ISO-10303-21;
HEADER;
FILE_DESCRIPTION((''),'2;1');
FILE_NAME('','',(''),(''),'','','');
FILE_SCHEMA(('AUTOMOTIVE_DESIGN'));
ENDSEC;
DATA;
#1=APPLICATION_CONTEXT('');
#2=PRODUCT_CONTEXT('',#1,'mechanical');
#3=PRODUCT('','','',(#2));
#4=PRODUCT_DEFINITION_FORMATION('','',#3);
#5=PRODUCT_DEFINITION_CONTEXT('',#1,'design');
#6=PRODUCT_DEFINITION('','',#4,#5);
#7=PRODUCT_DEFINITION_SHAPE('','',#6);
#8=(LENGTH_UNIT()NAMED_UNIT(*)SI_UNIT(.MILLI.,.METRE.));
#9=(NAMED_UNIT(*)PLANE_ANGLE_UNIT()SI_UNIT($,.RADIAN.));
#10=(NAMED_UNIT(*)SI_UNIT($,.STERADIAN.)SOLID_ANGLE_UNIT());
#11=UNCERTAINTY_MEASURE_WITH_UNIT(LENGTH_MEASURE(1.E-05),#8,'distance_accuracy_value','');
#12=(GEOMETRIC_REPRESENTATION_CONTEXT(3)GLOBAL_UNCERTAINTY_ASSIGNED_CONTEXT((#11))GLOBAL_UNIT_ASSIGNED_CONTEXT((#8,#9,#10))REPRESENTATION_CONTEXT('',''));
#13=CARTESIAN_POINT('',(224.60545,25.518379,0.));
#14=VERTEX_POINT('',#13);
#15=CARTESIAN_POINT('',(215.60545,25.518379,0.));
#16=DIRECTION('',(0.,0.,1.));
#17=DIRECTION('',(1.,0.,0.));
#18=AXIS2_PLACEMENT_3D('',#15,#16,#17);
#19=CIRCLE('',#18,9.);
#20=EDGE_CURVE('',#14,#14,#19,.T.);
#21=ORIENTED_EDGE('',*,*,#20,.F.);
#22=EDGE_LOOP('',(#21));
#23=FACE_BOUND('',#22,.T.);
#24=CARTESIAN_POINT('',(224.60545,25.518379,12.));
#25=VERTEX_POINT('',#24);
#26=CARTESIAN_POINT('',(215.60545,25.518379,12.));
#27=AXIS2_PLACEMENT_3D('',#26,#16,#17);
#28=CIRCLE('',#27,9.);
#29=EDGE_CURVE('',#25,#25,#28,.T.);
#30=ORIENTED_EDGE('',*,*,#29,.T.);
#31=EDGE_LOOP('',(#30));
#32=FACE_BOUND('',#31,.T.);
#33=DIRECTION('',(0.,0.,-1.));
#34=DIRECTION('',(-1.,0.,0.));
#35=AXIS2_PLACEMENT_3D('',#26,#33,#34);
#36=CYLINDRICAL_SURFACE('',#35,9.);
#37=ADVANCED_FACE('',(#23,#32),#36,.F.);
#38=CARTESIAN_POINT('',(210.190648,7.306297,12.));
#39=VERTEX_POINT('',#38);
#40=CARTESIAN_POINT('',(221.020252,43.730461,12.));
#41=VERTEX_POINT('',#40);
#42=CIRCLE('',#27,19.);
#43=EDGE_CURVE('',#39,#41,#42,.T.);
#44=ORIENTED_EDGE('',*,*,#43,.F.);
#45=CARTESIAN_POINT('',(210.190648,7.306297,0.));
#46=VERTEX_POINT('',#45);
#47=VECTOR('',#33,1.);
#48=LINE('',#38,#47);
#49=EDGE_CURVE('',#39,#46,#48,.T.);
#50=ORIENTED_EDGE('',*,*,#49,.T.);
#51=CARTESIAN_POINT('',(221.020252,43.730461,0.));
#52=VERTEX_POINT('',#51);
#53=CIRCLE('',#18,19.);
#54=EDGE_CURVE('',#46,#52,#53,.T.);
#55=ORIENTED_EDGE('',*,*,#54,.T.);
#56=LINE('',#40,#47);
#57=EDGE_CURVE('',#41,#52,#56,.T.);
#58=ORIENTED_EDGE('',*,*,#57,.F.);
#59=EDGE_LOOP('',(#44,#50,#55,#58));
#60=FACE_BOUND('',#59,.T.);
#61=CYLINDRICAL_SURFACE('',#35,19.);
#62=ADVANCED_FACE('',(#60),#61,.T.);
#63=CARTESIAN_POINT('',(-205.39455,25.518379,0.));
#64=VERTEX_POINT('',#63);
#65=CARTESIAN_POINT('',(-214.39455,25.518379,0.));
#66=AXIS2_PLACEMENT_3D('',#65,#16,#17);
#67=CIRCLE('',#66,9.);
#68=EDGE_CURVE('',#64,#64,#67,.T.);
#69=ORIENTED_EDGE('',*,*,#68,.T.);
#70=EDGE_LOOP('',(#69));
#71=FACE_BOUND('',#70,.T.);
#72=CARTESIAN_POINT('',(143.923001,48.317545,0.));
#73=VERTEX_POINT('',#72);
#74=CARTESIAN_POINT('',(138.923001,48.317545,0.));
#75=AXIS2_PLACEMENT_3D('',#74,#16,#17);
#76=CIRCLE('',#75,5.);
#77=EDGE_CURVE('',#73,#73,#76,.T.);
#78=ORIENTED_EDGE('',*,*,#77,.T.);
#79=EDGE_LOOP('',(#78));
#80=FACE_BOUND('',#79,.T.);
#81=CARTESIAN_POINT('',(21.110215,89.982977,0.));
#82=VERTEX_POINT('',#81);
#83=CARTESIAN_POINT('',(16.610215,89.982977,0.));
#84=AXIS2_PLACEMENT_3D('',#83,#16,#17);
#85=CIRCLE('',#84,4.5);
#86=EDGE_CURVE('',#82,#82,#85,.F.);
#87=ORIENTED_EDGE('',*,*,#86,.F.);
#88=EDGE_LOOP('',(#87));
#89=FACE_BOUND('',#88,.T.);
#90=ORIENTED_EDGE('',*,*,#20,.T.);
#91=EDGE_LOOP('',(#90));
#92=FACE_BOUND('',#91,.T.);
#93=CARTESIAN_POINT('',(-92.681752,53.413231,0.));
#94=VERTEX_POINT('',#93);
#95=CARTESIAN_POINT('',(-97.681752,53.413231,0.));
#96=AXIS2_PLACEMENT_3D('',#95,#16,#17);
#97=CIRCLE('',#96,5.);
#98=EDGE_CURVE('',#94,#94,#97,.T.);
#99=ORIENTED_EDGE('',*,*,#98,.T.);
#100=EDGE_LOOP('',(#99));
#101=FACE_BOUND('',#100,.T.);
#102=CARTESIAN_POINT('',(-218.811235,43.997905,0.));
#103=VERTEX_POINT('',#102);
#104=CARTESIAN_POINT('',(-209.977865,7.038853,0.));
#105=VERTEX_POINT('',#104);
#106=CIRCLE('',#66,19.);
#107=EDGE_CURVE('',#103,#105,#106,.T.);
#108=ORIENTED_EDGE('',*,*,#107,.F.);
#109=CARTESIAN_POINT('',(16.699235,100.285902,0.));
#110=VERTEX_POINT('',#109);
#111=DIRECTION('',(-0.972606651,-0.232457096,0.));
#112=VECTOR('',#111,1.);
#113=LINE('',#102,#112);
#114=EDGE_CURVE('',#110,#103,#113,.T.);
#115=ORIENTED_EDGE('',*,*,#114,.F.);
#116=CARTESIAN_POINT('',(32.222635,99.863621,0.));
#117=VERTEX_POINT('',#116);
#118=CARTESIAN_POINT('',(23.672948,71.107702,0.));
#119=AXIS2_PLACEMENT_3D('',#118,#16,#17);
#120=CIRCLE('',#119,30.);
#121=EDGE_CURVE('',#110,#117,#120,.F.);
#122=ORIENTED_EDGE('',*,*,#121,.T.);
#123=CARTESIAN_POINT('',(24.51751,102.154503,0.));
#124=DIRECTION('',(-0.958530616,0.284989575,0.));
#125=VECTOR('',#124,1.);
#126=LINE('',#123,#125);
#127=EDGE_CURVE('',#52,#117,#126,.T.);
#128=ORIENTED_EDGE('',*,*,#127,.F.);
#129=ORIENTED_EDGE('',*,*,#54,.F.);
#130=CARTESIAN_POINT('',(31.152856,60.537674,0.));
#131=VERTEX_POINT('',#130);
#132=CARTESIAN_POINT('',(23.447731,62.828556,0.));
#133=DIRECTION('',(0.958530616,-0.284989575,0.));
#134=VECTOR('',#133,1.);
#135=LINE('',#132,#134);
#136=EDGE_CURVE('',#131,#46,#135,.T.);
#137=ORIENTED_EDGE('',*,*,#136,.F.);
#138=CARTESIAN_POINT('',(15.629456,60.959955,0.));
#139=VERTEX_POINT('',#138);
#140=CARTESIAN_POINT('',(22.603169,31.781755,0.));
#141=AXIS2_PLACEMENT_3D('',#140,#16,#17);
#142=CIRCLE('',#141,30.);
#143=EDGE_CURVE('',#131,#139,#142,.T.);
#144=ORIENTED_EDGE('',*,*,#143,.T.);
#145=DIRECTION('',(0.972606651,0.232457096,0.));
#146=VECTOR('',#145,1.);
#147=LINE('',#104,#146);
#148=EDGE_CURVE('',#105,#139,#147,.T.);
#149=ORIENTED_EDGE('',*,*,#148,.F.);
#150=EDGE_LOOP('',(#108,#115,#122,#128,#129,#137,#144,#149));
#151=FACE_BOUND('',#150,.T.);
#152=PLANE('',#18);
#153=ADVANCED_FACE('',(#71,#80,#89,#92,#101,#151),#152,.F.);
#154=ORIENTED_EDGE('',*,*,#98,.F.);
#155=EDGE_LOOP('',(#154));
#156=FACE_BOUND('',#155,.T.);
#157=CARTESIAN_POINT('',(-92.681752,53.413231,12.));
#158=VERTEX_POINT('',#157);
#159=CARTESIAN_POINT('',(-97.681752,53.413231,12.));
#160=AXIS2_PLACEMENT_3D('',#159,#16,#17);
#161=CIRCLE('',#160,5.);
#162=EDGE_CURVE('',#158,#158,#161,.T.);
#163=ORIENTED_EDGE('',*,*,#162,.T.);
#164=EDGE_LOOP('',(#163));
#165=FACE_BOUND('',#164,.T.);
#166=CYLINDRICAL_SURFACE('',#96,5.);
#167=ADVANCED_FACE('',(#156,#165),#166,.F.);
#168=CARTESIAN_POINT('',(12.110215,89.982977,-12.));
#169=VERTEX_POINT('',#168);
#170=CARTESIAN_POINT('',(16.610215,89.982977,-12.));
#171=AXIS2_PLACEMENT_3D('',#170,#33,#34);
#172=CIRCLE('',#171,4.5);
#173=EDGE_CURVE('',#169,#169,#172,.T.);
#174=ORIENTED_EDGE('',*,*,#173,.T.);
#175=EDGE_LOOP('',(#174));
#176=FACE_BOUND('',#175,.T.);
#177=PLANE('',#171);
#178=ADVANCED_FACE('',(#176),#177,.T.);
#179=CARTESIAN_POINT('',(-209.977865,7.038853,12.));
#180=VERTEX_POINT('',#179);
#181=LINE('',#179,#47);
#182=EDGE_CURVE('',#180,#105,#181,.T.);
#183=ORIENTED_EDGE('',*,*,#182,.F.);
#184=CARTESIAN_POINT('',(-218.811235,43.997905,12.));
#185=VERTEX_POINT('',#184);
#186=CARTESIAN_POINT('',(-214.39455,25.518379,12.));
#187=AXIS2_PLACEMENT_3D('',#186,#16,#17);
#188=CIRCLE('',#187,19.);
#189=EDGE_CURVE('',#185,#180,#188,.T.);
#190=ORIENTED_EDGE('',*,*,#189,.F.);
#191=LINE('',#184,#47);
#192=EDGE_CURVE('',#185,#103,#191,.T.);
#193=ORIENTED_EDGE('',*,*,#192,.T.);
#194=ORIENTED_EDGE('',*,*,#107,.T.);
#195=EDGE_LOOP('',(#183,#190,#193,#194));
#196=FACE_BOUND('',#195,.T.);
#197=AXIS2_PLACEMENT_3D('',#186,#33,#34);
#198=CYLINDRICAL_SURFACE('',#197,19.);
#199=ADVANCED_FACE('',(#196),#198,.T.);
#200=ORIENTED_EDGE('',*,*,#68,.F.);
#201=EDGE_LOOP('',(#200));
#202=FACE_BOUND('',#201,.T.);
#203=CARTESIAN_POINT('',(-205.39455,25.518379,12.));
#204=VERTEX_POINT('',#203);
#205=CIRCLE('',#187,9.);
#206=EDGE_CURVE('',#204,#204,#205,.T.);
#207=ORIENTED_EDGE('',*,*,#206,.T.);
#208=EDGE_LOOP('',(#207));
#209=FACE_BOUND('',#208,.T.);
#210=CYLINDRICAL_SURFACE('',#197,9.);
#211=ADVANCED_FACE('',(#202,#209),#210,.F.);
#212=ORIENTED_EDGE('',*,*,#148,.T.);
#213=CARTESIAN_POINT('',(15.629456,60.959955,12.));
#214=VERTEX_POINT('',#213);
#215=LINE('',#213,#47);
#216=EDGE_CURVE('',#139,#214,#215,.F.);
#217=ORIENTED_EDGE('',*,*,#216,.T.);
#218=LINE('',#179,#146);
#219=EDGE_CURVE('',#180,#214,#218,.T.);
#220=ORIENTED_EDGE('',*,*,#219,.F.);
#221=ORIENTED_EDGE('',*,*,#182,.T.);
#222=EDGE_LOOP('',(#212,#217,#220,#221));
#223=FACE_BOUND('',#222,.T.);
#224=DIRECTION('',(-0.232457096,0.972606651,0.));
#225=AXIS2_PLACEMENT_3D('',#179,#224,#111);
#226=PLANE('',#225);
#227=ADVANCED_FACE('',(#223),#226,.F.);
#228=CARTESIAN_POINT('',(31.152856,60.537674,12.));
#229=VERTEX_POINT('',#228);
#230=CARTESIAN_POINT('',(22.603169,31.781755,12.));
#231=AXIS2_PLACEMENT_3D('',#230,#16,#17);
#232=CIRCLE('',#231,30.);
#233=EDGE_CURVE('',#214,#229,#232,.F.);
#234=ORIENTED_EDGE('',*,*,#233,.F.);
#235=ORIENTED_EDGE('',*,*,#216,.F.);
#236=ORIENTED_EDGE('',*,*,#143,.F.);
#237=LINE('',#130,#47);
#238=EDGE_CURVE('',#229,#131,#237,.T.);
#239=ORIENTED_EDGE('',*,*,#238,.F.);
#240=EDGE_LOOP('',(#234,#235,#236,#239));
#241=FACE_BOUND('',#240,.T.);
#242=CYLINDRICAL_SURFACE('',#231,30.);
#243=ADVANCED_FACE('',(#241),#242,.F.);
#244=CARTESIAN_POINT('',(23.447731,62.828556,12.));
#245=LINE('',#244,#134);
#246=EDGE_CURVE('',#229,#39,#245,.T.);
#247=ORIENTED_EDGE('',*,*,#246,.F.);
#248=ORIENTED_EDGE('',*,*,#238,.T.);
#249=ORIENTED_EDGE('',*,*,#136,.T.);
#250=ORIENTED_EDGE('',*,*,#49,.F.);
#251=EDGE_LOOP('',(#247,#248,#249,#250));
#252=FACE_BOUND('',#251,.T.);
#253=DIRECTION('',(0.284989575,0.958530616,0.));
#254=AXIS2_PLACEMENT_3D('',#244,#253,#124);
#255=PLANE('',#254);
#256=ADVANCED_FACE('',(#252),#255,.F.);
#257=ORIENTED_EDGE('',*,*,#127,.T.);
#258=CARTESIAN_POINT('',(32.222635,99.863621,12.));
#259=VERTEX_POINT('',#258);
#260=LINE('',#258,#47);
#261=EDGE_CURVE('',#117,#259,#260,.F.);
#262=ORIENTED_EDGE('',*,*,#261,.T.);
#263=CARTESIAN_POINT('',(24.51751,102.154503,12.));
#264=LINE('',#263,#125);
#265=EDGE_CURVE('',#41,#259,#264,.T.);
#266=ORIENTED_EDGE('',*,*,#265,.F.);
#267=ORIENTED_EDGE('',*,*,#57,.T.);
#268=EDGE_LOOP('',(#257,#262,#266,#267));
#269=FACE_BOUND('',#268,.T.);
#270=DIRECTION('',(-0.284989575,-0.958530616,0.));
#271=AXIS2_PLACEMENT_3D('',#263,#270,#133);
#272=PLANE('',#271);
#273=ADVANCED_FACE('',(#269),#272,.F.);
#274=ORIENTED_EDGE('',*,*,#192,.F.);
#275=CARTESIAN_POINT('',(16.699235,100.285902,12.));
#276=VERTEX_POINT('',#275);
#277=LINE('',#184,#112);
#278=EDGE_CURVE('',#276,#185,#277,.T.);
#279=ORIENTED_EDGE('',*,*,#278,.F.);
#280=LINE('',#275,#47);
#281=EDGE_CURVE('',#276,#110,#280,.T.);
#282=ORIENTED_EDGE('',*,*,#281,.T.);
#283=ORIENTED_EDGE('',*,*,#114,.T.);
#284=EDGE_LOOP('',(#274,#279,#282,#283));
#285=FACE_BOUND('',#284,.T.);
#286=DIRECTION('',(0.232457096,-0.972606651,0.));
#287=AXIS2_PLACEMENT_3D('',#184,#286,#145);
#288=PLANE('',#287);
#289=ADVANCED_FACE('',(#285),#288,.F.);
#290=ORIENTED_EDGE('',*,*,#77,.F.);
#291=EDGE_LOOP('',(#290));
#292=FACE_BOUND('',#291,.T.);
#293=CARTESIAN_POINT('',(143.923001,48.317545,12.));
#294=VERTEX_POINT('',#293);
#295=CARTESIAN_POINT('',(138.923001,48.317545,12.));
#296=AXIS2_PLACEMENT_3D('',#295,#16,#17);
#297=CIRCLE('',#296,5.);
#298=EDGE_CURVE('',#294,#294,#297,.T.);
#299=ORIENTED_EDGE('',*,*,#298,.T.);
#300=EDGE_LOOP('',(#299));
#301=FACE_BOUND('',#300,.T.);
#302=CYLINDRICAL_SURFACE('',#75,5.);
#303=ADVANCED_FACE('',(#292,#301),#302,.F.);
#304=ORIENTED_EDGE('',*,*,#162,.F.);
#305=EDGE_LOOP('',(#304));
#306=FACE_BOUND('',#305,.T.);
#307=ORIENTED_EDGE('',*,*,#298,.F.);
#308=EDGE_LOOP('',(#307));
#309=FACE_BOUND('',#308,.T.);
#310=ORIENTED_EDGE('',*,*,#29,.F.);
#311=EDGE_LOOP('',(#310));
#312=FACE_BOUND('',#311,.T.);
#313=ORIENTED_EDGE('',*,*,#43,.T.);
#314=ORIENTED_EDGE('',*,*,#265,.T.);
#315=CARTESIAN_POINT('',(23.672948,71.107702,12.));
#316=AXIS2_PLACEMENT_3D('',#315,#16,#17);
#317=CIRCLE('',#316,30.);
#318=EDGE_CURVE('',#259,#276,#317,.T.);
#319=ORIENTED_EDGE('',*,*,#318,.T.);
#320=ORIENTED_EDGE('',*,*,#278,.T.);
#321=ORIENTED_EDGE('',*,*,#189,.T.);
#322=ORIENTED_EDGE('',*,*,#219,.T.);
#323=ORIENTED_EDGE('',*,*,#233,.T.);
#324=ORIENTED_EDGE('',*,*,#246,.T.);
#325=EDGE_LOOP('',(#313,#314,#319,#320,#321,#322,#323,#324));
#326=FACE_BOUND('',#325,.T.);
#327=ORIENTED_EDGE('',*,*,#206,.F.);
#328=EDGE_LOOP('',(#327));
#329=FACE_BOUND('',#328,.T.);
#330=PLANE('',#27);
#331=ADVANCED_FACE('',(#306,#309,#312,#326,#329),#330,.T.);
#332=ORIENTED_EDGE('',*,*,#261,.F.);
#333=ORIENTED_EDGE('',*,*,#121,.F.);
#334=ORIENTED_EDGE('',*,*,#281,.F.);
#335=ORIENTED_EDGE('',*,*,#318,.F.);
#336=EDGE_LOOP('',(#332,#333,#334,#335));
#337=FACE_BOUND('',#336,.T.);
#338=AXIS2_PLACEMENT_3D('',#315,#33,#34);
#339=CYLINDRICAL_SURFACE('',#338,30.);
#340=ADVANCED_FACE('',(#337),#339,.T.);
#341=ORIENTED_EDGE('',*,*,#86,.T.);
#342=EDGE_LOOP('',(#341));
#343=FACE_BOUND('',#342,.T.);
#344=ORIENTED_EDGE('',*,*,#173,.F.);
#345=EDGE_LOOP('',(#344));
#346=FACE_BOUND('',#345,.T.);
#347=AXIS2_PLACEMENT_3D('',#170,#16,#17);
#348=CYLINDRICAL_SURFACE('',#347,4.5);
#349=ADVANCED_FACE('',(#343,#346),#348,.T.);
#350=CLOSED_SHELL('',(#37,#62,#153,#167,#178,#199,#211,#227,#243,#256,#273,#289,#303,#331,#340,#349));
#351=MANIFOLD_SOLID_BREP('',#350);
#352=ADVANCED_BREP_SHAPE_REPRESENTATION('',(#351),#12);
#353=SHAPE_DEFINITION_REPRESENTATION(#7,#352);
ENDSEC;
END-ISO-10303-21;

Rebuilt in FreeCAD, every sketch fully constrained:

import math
import FreeCAD as App
import Part
import Sketcher
from FreeCAD import Vector
Q = App.Units.Quantity


def edges_at(feature, points):
    """Names of the edges that pass closest to the given points."""
    edges = feature.Shape.Edges
    near = lambda p: min(range(len(edges)), key=lambda i: edges[i].distToShape(Part.Vertex(*p))[0])
    return sorted({f"Edge{near(p) + 1}" for p in points})

doc = App.newDocument("Part")
body = doc.addObject("PartDesign::Body", "Body")

# Sketch on XY plane
sketch1 = body.newObject("Sketcher::SketchObject", "Sketch")
sketch1.AttachmentSupport = (doc.getObject("XY_Plane"), [""])
sketch1.MapMode = "FlatFace"
sketch1.addGeometry(Part.LineSegment(Vector(221.020252, 43.730461, 0), Vector(24.51751, 102.154503, 0)), False)
sketch1.addGeometry(Part.LineSegment(Vector(24.51751, 102.154503, 0), Vector(-218.811235, 43.997905, 0)), False)
sketch1.addGeometry(Part.ArcOfCircle(Part.Circle(Vector(-214.39455, 25.518379, 0), Vector(0, 0, 1), 19), math.radians(103.441775), math.radians(283.441775)), False)
sketch1.addGeometry(Part.LineSegment(Vector(-209.977865, 7.038853, 0), Vector(23.447731, 62.828556, 0)), False)
sketch1.addGeometry(Part.LineSegment(Vector(23.447731, 62.828556, 0), Vector(210.190648, 7.306297, 0)), False)
sketch1.addGeometry(Part.ArcOfCircle(Part.Circle(Vector(215.60545, 25.518379, 0), Vector(0, 0, 1), 19), math.radians(-106.558225), math.radians(73.441775)), False)
sketch1.addGeometry(Part.Circle(Vector(215.60545, 25.518379, 0), Vector(0, 0, 1), 9), False)
sketch1.addGeometry(Part.Circle(Vector(-214.39455, 25.518379, 0), Vector(0, 0, 1), 9), False)
sketch1.addConstraint(Sketcher.Constraint("Coincident", 0, 2, 1, 1))
sketch1.addConstraint(Sketcher.Constraint("Tangent", 1, 2, 2, 1))
sketch1.addConstraint(Sketcher.Constraint("Tangent", 2, 2, 3, 1))
sketch1.addConstraint(Sketcher.Constraint("Coincident", 3, 2, 4, 1))
sketch1.addConstraint(Sketcher.Constraint("Tangent", 4, 2, 5, 1))
sketch1.addConstraint(Sketcher.Constraint("Tangent", 5, 2, 0, 1))
sketch1.addConstraint(Sketcher.Constraint("Coincident", 6, 3, 5, 3))
sketch1.addConstraint(Sketcher.Constraint("Coincident", 7, 3, 2, 3))
sketch1.addConstraint(Sketcher.Constraint("Equal", 2, 5))
sketch1.addConstraint(Sketcher.Constraint("Equal", 6, 7))
sketch1.addConstraint(Sketcher.Constraint("Parallel", 1, 3))
sketch1.addConstraint(Sketcher.Constraint("Parallel", 0, 4))
sketch1.addConstraint(Sketcher.Constraint("Horizontal", 2, 3, 5, 3))
sketch1.addConstraint(Sketcher.Constraint("Diameter", 6, Q("18 mm")))
sketch1.addConstraint(Sketcher.Constraint("Radius", 2, Q("19 mm")))
sketch1.addConstraint(Sketcher.Constraint("Distance", 3, Q("240 mm")))
sketch1.addConstraint(Sketcher.Constraint("DistanceX", 2, 3, 5, 3, Q("430 mm")))
sketch1.addConstraint(Sketcher.Constraint("DistanceX", 4, 2, 5, 3, Q("5.414802 mm")))
sketch1.addConstraint(Sketcher.Constraint("DistanceX", 2, 3, -1, 1, Q("214.39455 mm")))
sketch1.addConstraint(Sketcher.Constraint("DistanceY", -1, 1, 2, 3, Q("25.518379 mm")))
pad1 = body.newObject("PartDesign::Pad", "Pad")
pad1.Profile = sketch1
pad1.Length = 12
doc.recompute()

fillet = body.newObject("PartDesign::Fillet", "Fillet")
fillet.Base = (pad1, edges_at(pad1, [(23.448, 62.829, 6), (24.518, 102.155, 6)]))
fillet.Radius = 30

# Sketch on XY plane
sketch2 = body.newObject("Sketcher::SketchObject", "Sketch001")
sketch2.AttachmentSupport = (doc.getObject("XY_Plane"), [""])
sketch2.MapMode = "FlatFace"
sketch2.AttachmentOffset = App.Placement(Vector(0, 0, 12), App.Rotation())
sketch2.addGeometry(Part.Circle(Vector(138.923001, 48.317545, 0), Vector(0, 0, 1), 5), False)
sketch2.addGeometry(Part.Circle(Vector(-97.681752, 53.413231, 0), Vector(0, 0, 1), 5), False)
sketch2.addConstraint(Sketcher.Constraint("Equal", 0, 1))
sketch2.addConstraint(Sketcher.Constraint("Diameter", 0, Q("10 mm")))
sketch2.addConstraint(Sketcher.Constraint("DistanceX", -1, 1, 0, 3, Q("138.923001 mm")))
sketch2.addConstraint(Sketcher.Constraint("DistanceX", 1, 3, -1, 1, Q("97.681752 mm")))
sketch2.addConstraint(Sketcher.Constraint("DistanceY", -1, 1, 1, 3, Q("53.413231 mm")))
sketch2.addConstraint(Sketcher.Constraint("DistanceY", -1, 1, 0, 3, Q("48.317545 mm")))
pocket1 = body.newObject("PartDesign::Pocket", "Pocket")
pocket1.Profile = sketch2
pocket1.Type = "ThroughAll"

# Sketch on XY plane
sketch3 = body.newObject("Sketcher::SketchObject", "Sketch002")
sketch3.AttachmentSupport = (doc.getObject("XY_Plane"), [""])
sketch3.MapMode = "FlatFace"
sketch3.addGeometry(Part.Circle(Vector(16.610215, 89.982977, 0), Vector(0, 0, 1), 4.5), False)
sketch3.addConstraint(Sketcher.Constraint("Diameter", 0, Q("9 mm")))
sketch3.addConstraint(Sketcher.Constraint("DistanceX", -1, 1, 0, 3, Q("16.610215 mm")))
sketch3.addConstraint(Sketcher.Constraint("DistanceY", -1, 1, 0, 3, Q("89.982977 mm")))
pad2 = body.newObject("PartDesign::Pad", "Pad001")
pad2.Profile = sketch3
pad2.Length = 12
pad2.Reversed = True

doc.recompute()
